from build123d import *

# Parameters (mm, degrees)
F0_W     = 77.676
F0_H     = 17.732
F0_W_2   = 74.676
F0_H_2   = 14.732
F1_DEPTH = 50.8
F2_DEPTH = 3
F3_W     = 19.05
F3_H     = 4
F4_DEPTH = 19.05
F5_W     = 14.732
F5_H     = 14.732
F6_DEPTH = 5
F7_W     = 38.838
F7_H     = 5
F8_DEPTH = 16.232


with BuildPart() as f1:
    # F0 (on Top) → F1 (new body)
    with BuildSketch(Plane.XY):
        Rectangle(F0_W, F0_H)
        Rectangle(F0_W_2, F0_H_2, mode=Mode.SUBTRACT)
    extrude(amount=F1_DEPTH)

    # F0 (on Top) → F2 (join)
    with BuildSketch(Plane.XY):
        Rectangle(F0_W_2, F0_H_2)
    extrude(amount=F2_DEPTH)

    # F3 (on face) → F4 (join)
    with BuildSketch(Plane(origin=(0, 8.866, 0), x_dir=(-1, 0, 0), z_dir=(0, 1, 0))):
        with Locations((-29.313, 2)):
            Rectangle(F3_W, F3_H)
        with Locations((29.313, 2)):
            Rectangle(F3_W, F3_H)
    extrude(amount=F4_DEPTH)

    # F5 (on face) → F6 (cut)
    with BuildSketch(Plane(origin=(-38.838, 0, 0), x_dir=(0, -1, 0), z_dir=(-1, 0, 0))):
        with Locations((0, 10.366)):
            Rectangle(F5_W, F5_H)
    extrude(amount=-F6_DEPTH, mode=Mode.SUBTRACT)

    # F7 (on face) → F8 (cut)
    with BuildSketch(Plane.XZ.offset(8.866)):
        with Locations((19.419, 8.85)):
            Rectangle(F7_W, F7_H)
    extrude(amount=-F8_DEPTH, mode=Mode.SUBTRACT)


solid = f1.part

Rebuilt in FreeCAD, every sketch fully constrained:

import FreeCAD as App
import Part
import Sketcher
Q = App.Units.Quantity

doc = App.newDocument("Part")
body = doc.addObject("PartDesign::Body", "Body")

# Sketch on XY plane
sketch1 = doc.addObject("Sketcher::SketchObject", "Sketch")
body.addObject(sketch1)
sketch1.AttachmentSupport = (doc.XY_Plane, [""])
sketch1.MapMode = "FlatFace"
sketch1.addGeometry([
    Part.LineSegment(App.Vector(-39, 9, 0), App.Vector(-39, -9, 0)),  # 0
    Part.LineSegment(App.Vector(-39, -9, 0), App.Vector(39, -9, 0)),  # 1
    Part.LineSegment(App.Vector(39, -9, 0), App.Vector(39, 9, 0)),  # 2
    Part.LineSegment(App.Vector(39, 9, 0), App.Vector(-39, 9, 0)),  # 3
    Part.LineSegment(App.Vector(37, -7, 0), App.Vector(-37, -7, 0)),  # 4
    Part.LineSegment(App.Vector(-37, -7, 0), App.Vector(-37, 7, 0)),  # 5
    Part.LineSegment(App.Vector(-37, 7, 0), App.Vector(37, 7, 0)),  # 6
    Part.LineSegment(App.Vector(37, 7, 0), App.Vector(37, -7, 0)),  # 7
], False)
sketch1.addConstraint([
    Sketcher.Constraint("Coincident", 0, 2, 1, 1),
    Sketcher.Constraint("Coincident", 1, 2, 2, 1),
    Sketcher.Constraint("Coincident", 2, 2, 3, 1),
    Sketcher.Constraint("Coincident", 3, 2, 0, 1),
    Sketcher.Constraint("Coincident", 4, 2, 5, 1),
    Sketcher.Constraint("Coincident", 5, 2, 6, 1),
    Sketcher.Constraint("Coincident", 6, 2, 7, 1),
    Sketcher.Constraint("Coincident", 7, 2, 4, 1),
    Sketcher.Constraint("Vertical", 0),
    Sketcher.Constraint("Horizontal", 1),
    Sketcher.Constraint("Vertical", 2),
    Sketcher.Constraint("Horizontal", 3),
    Sketcher.Constraint("Horizontal", 4),
    Sketcher.Constraint("Vertical", 5),
    Sketcher.Constraint("Horizontal", 6),
    Sketcher.Constraint("Vertical", 7),
    Sketcher.Constraint("Symmetric", 0, 2, 2, 2, -1, 1),
    Sketcher.Constraint("Symmetric", 4, 2, 6, 2, -1, 1),
    Sketcher.Constraint("DistanceX", 4, 2, 4, 1, Q("2.94 in")),
    Sketcher.Constraint("DistanceY", 5, 1, 5, 2, Q("0.58 in")),
    Sketcher.Constraint("DistanceX", 1, 1, 1, 2, Q("77.676 mm")),
    Sketcher.Constraint("DistanceY", 0, 2, 0, 1, Q("17.732 mm")),
])
pad1 = doc.addObject("PartDesign::Pad", "Pad")
body.addObject(pad1)
pad1.Profile = sketch1
pad1.Length = Q("2 in")

# Sketch on XY plane
sketch2 = doc.addObject("Sketcher::SketchObject", "Sketch001")
body.addObject(sketch2)
sketch2.AttachmentSupport = (doc.XY_Plane, [""])
sketch2.MapMode = "FlatFace"
sketch2.addGeometry([
    Part.LineSegment(App.Vector(-37, 7, 0), App.Vector(-37, -7, 0)),
    Part.LineSegment(App.Vector(-37, -7, 0), App.Vector(37, -7, 0)),
    Part.LineSegment(App.Vector(37, -7, 0), App.Vector(37, 7, 0)),
    Part.LineSegment(App.Vector(37, 7, 0), App.Vector(-37, 7, 0)),
], False)
sketch2.addConstraint([
    Sketcher.Constraint("Coincident", 0, 2, 1, 1),
    Sketcher.Constraint("Coincident", 1, 2, 2, 1),
    Sketcher.Constraint("Coincident", 2, 2, 3, 1),
    Sketcher.Constraint("Coincident", 3, 2, 0, 1),
    Sketcher.Constraint("Vertical", 0),
    Sketcher.Constraint("Horizontal", 1),
    Sketcher.Constraint("Vertical", 2),
    Sketcher.Constraint("Horizontal", 3),
    Sketcher.Constraint("Symmetric", 0, 2, 2, 2, -1, 1),
    Sketcher.Constraint("DistanceX", 1, 1, 1, 2, Q("2.94 in")),
    Sketcher.Constraint("DistanceY", 0, 2, 0, 1, Q("0.58 in")),
])
pad2 = doc.addObject("PartDesign::Pad", "Pad001")
body.addObject(pad2)
pad2.Profile = sketch2
pad2.Length = 3

# Sketch on XZ plane
sketch3 = doc.addObject("Sketcher::SketchObject", "Sketch002")
body.addObject(sketch3)
sketch3.AttachmentSupport = (doc.XZ_Plane, [""])
sketch3.MapMode = "FlatFace"
sketch3.AttachmentOffset = App.Placement(App.Vector(0, 0, -8.866), App.Rotation())
sketch3.addGeometry([
    Part.LineSegment(App.Vector(38.8, 4, 0), App.Vector(38.8, 0, 0)),  # 0
    Part.LineSegment(App.Vector(38.8, 0, 0), App.Vector(19.8, 0, 0)),  # 1
    Part.LineSegment(App.Vector(19.8, 0, 0), App.Vector(19.8, 4, 0)),  # 2
    Part.LineSegment(App.Vector(19.8, 4, 0), App.Vector(38.8, 4, 0)),  # 3
    Part.LineSegment(App.Vector(-19.8, 4, 0), App.Vector(-19.8, 0, 0)),  # 4
    Part.LineSegment(App.Vector(-19.8, 0, 0), App.Vector(-38.8, 0, 0)),  # 5
    Part.LineSegment(App.Vector(-38.8, 0, 0), App.Vector(-38.8, 4, 0)),  # 6
    Part.LineSegment(App.Vector(-38.8, 4, 0), App.Vector(-19.8, 4, 0)),  # 7
], False)
sketch3.addConstraint([
    Sketcher.Constraint("Coincident", 0, 2, 1, 1),
    Sketcher.Constraint("Coincident", 1, 2, 2, 1),
    Sketcher.Constraint("Coincident", 2, 2, 3, 1),
    Sketcher.Constraint("Coincident", 3, 2, 0, 1),
    Sketcher.Constraint("Coincident", 4, 2, 5, 1),
    Sketcher.Constraint("Coincident", 5, 2, 6, 1),
    Sketcher.Constraint("Coincident", 6, 2, 7, 1),
    Sketcher.Constraint("Coincident", 7, 2, 4, 1),
    Sketcher.Constraint("Vertical", 0),
    Sketcher.Constraint("Horizontal", 1),
    Sketcher.Constraint("Vertical", 2),
    Sketcher.Constraint("Horizontal", 3),
    Sketcher.Constraint("Vertical", 4),
    Sketcher.Constraint("Horizontal", 5),
    Sketcher.Constraint("Vertical", 6),
    Sketcher.Constraint("Horizontal", 7),
    Sketcher.Constraint("Symmetric", 1, 2, 4, 2, -1, 1),
    Sketcher.Constraint("Symmetric", 0, 2, 5, 2, -2),
    Sketcher.Constraint("Horizontal", 3, 2, 6, 2),
    Sketcher.Constraint("DistanceX", 1, 2, 1, 1, Q("0.75 in")),
    Sketcher.Constraint("DistanceY", 0, 2, 0, 1, Q("4 mm")),
    Sketcher.Constraint("DistanceX", -1, 1, 0, 2, Q("38.838 mm")),
])
pad3 = doc.addObject("PartDesign::Pad", "Pad002")
body.addObject(pad3)
pad3.Profile = sketch3
pad3.Length = Q("0.75 in")
pad3.Reversed = True

# Sketch on YZ plane
sketch4 = doc.addObject("Sketcher::SketchObject", "Sketch003")
body.addObject(sketch4)
sketch4.AttachmentSupport = (doc.YZ_Plane, [""])
sketch4.MapMode = "FlatFace"
sketch4.AttachmentOffset = App.Placement(App.Vector(0, 0, -38.838), App.Rotation())
sketch4.addGeometry([
    Part.LineSegment(App.Vector(7, 18, 0), App.Vector(7, 3, 0)),
    Part.LineSegment(App.Vector(7, 3, 0), App.Vector(-7, 3, 0)),
    Part.LineSegment(App.Vector(-7, 3, 0), App.Vector(-7, 18, 0)),
    Part.LineSegment(App.Vector(-7, 18, 0), App.Vector(7, 18, 0)),
], False)
sketch4.addConstraint([
    Sketcher.Constraint("Coincident", 0, 2, 1, 1),
    Sketcher.Constraint("Coincident", 1, 2, 2, 1),
    Sketcher.Constraint("Coincident", 2, 2, 3, 1),
    Sketcher.Constraint("Coincident", 3, 2, 0, 1),
    Sketcher.Constraint("Vertical", 0),
    Sketcher.Constraint("Horizontal", 1),
    Sketcher.Constraint("Vertical", 2),
    Sketcher.Constraint("Horizontal", 3),
    Sketcher.Constraint("Equal", 3, 0),
    Sketcher.Constraint("DistanceX", 1, 2, 1, 1, Q("0.58 in")),
    Sketcher.Constraint("DistanceX", -1, 1, 0, 2, Q("0.29 in")),
    Sketcher.Constraint("DistanceY", -1, 1, 0, 2, Q("3 mm")),
])
pocket1 = doc.addObject("PartDesign::Pocket", "Pocket")
body.addObject(pocket1)
pocket1.Profile = sketch4
pocket1.Length = 5
pocket1.Reversed = True

# Sketch on XZ plane
sketch5 = doc.addObject("Sketcher::SketchObject", "Sketch004")
body.addObject(sketch5)
sketch5.AttachmentSupport = (doc.XZ_Plane, [""])
sketch5.MapMode = "FlatFace"
sketch5.AttachmentOffset = App.Placement(App.Vector(0, 0, 8.866), App.Rotation())
sketch5.addGeometry([
    Part.LineSegment(App.Vector(0, 11, 0), App.Vector(0, 6, 0)),
    Part.LineSegment(App.Vector(0, 6, 0), App.Vector(39, 6, 0)),
    Part.LineSegment(App.Vector(39, 6, 0), App.Vector(39, 11, 0)),
    Part.LineSegment(App.Vector(39, 11, 0), App.Vector(0, 11, 0)),
], False)
sketch5.addConstraint([
    Sketcher.Constraint("Coincident", 0, 2, 1, 1),
    Sketcher.Constraint("Coincident", 1, 2, 2, 1),
    Sketcher.Constraint("Coincident", 2, 2, 3, 1),
    Sketcher.Constraint("Coincident", 3, 2, 0, 1),
    Sketcher.Constraint("Vertical", 0),
    Sketcher.Constraint("Horizontal", 1),
    Sketcher.Constraint("Vertical", 2),
    Sketcher.Constraint("Horizontal", 3),
    Sketcher.Constraint("PointOnObject", 0, 2, -2),
    Sketcher.Constraint("DistanceY", -1, 1, 0, 2, Q("0.25 in")),
    Sketcher.Constraint("DistanceX", 1, 1, 1, 2, Q("38.838 mm")),
    Sketcher.Constraint("DistanceY", 0, 2, 0, 1, Q("5 mm")),
])
pocket2 = doc.addObject("PartDesign::Pocket", "Pocket001")
body.addObject(pocket2)
pocket2.Profile = sketch5
pocket2.Length = 16.232

doc.recompute()
